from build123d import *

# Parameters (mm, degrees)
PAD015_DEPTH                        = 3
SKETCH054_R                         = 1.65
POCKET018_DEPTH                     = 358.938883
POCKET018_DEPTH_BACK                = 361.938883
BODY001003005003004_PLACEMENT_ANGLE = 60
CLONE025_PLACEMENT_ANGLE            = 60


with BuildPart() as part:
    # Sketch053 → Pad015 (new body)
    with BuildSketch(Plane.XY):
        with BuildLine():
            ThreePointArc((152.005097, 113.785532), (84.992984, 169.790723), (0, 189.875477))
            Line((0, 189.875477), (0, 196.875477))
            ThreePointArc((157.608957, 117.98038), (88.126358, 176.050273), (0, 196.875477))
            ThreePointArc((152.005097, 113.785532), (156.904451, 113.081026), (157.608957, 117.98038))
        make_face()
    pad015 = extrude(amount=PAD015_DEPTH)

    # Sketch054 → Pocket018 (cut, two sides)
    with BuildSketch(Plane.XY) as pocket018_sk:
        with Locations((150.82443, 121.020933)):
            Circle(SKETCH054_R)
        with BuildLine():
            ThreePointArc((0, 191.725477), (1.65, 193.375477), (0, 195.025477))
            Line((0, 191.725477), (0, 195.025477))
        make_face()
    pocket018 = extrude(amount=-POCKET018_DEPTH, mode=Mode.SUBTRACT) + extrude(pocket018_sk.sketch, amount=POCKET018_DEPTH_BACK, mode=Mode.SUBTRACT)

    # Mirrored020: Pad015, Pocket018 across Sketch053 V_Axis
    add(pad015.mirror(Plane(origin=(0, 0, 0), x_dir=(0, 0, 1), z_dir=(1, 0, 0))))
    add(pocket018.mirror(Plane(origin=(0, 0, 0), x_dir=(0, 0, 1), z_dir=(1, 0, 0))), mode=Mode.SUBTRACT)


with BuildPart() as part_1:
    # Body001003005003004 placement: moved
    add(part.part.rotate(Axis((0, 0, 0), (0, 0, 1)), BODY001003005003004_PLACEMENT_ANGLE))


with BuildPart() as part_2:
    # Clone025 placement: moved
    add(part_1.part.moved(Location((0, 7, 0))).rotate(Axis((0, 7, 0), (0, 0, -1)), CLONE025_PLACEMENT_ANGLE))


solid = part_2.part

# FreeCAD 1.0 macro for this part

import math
import FreeCAD as App
import Part
import Sketcher

V = App.Vector

doc = App.newDocument("Part")
body = doc.addObject("PartDesign::Body", "Body")

# Sketch on XY plane
sketch1 = body.newObject("Sketcher::SketchObject", "Sketch")
sketch1.AttachmentSupport = (doc.getObject("XY_Plane"), [""])
sketch1.MapMode = "FlatFace"
sketch1.addGeometry([
    Part.ArcOfCircle(Part.Circle(V(0, 0, 0), V(0, 0, 1), 189.9), math.radians(37), math.radians(90)),
    Part.ArcOfCircle(Part.Circle(V(154.8, 115.9, 0), V(0, 0, 1), 3.5), math.radians(-143), math.radians(37)),
    Part.ArcOfCircle(Part.Circle(V(0, 0, 0), V(0, 0, 1), 196.9), math.radians(37), math.radians(90)),
    Part.LineSegment(V(0, 196.9, 0), V(0, 189.9, 0)),
], False)
sketch1.addConstraint([
    Sketcher.Constraint("Tangent", 0, 1, 1, 1),
    Sketcher.Constraint("Tangent", 1, 2, 2, 1),
    Sketcher.Constraint("Coincident", 2, 2, 3, 1),
    Sketcher.Constraint("Coincident", 3, 2, 0, 2),
    Sketcher.Constraint("Vertical", 3),
    Sketcher.Constraint("Coincident", 0, 3, -1, 1),
    Sketcher.Constraint("Coincident", 2, 3, -1, 1),
    Sketcher.Constraint("PointOnObject", 2, 2, -2),
    Sketcher.Constraint("Radius", 1, 3.5),
    Sketcher.Constraint("Radius", 0, 189.875473),
    Sketcher.Constraint("DistanceY", -1, 1, 1, 2, 117.98038),
])
pad1 = body.newObject("PartDesign::Pad", "Pad")
pad1.Profile = sketch1
pad1.Length = 3

# Sketch on XY plane
sketch2 = body.newObject("Sketcher::SketchObject", "Sketch001")
sketch2.AttachmentSupport = (doc.getObject("XY_Plane"), [""])
sketch2.MapMode = "FlatFace"
sketch2.addGeometry([
    Part.Circle(V(150.8, 121, 0), V(0, 0, 1), 1.6),
    Part.ArcOfCircle(Part.Circle(V(0, 193.4, 0), V(0, 0, 1), 1.6), math.radians(-90), math.radians(90)),
    Part.LineSegment(V(0, 195, 0), V(0, 191.7, 0)),
], False)
sketch2.addConstraint([
    Sketcher.Constraint("Coincident", 1, 1, 2, 2),
    Sketcher.Constraint("Coincident", 2, 1, 1, 2),
    Sketcher.Constraint("Vertical", 2),
    Sketcher.Constraint("Equal", 0, 1),
    Sketcher.Constraint("PointOnObject", 1, 3, -2),
    Sketcher.Constraint("PointOnObject", 1, 1, -2),
    Sketcher.Constraint("Diameter", 0, 3.3),
    Sketcher.Constraint("DistanceX", -1, 1, 0, 3, 150.82443),
    Sketcher.Constraint("DistanceY", -1, 1, 0, 3, 121.020933),
    Sketcher.Constraint("DistanceY", -1, 1, 1, 3, 193.375477),
])
pocket1 = body.newObject("PartDesign::Pocket", "Pocket")
pocket1.Profile = sketch2
pocket1.Type = "ThroughAll"
pocket1.Midplane = True
doc.recompute()

mirrored = body.newObject("PartDesign::Mirrored", "Mirrored")
mirrored.Originals = [pad1, pocket1]
mirrored.MirrorPlane = (doc.getObject("YZ_Plane"), [""])
body.Tip = mirrored
body2 = doc.addObject("PartDesign::Body", "Body001")
doc.recompute()

body.Placement = App.Placement(V(0, 0, 0), App.Rotation(V(0, 0, 1), 60))
boolean = body2.newObject("PartDesign::Boolean", "Boolean")
boolean.Type = "Fuse"
boolean.addObjects([body])
body3 = doc.addObject("PartDesign::Body", "Body002")
doc.recompute()

body2.Placement = App.Placement(V(0, 7, 0), App.Rotation(V(0, 0, -1), 60))
boolean2 = body3.newObject("PartDesign::Boolean", "Boolean001")
boolean2.Type = "Fuse"
boolean2.addObjects([body2])

doc.recompute()
